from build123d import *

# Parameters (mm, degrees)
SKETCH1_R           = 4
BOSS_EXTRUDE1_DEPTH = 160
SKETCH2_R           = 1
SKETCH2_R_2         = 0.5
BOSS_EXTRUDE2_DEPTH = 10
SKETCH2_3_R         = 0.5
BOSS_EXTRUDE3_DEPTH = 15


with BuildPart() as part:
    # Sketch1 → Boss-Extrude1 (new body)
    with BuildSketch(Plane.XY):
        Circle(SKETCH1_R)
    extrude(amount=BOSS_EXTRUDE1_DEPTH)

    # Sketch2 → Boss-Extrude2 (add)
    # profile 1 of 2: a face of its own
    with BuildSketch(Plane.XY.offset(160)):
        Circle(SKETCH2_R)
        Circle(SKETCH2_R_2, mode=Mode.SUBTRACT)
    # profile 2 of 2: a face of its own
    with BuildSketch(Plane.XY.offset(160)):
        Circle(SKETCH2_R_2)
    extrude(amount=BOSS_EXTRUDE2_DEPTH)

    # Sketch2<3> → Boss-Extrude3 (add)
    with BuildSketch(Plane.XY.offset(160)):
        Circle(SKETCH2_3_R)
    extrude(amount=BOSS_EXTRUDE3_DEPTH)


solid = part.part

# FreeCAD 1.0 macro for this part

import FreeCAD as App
import Part
import Sketcher

V = App.Vector

doc = App.newDocument("Part")
body = doc.addObject("PartDesign::Body", "Body")

# Sketch on XY plane
sketch1 = doc.addObject("Sketcher::SketchObject", "Sketch")
body.addObject(sketch1)
sketch1.AttachmentSupport = (doc.XY_Plane, [""])
sketch1.MapMode = "FlatFace"
sketch1.addGeometry(Part.Circle(V(0, 0, 0), V(0, 0, 1), 4), False)
sketch1.addConstraint([
    Sketcher.Constraint("Coincident", 0, 3, -1, 1),
    Sketcher.Constraint("Diameter", 0, 8.0),
])
pad1 = doc.addObject("PartDesign::Pad", "Pad")
body.addObject(pad1)
pad1.Profile = sketch1
pad1.Length = 160

# Sketch on XY plane
sketch2 = doc.addObject("Sketcher::SketchObject", "Sketch001")
body.addObject(sketch2)
sketch2.AttachmentSupport = (doc.XY_Plane, [""])
sketch2.MapMode = "FlatFace"
sketch2.AttachmentOffset = App.Placement(V(0, 0, 160), App.Rotation())
sketch2.addGeometry(Part.Circle(V(0, 0, 0), V(0, 0, 1), 1), False)
sketch2.addConstraint([
    Sketcher.Constraint("Coincident", 0, 3, -1, 1),
    Sketcher.Constraint("Diameter", 0, 2.0),
])
pad2 = doc.addObject("PartDesign::Pad", "Pad001")
body.addObject(pad2)
pad2.Profile = sketch2
pad2.Length = 10

# Sketch on XY plane
sketch3 = doc.addObject("Sketcher::SketchObject", "Sketch002")
body.addObject(sketch3)
sketch3.AttachmentSupport = (doc.XY_Plane, [""])
sketch3.MapMode = "FlatFace"
sketch3.AttachmentOffset = App.Placement(V(0, 0, 160), App.Rotation())
sketch3.addGeometry(Part.Circle(V(0, 0, 0), V(0, 0, 1), 0.5), False)
sketch3.addConstraint([
    Sketcher.Constraint("Coincident", 0, 3, -1, 1),
    Sketcher.Constraint("Diameter", 0, 1.0),
])
pad3 = doc.addObject("PartDesign::Pad", "Pad002")
body.addObject(pad3)
pad3.Profile = sketch3
pad3.Length = 15

doc.recompute()
